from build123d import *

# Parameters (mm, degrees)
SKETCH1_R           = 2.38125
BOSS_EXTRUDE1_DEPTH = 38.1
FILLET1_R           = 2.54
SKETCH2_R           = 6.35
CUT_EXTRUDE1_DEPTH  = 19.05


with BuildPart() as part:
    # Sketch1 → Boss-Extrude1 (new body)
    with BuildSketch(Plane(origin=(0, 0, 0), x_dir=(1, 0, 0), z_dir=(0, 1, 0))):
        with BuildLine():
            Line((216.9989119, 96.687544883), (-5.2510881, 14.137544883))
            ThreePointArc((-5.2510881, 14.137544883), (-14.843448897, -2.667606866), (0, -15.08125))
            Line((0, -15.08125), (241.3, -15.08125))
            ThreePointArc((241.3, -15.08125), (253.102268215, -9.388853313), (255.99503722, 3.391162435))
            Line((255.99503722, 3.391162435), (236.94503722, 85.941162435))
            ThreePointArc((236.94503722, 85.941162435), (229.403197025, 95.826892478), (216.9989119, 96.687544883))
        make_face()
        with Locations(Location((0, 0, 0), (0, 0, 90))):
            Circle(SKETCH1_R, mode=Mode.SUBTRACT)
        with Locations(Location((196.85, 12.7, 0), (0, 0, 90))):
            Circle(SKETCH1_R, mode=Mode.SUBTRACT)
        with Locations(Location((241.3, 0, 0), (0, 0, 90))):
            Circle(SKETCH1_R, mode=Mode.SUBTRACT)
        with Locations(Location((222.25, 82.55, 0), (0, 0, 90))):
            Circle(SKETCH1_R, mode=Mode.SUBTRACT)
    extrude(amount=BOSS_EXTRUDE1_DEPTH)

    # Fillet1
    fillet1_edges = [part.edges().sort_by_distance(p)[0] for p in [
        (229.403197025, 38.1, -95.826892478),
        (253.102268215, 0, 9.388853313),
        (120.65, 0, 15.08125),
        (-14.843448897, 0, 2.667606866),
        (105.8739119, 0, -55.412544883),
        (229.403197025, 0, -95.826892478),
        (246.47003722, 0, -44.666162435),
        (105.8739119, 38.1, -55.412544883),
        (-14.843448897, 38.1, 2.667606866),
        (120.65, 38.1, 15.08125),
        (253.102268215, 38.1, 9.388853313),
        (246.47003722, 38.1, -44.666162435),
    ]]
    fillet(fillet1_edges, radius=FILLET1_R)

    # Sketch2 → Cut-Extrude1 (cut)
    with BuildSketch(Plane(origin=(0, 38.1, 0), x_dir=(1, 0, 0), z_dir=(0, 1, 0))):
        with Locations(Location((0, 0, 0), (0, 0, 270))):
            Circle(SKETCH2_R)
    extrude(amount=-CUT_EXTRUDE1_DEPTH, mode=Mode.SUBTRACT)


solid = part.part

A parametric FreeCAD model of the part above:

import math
import FreeCAD as App
import Part
import Sketcher
Q = App.Units.Quantity


def edges_at(feature, points):
    """Names of the edges that pass closest to the given points."""
    edges = feature.Shape.Edges
    near = lambda p: min(range(len(edges)), key=lambda i: edges[i].distToShape(Part.Vertex(*p))[0])
    return sorted({f"Edge{near(p) + 1}" for p in points})

doc = App.newDocument("Part")
body = doc.addObject("PartDesign::Body", "Body")

sketch1 = body.newObject("Sketcher::SketchObject", "Sketch")
sketch1.AttachmentSupport = (doc.getObject("XZ_Plane"), [""])
sketch1.MapMode = "FlatFace"
sketch1.addGeometry([
    Part.LineSegment(App.Vector(217, -96.7, 0), App.Vector(-5.3, -14.1, 0)),
    Part.ArcOfCircle(Part.Circle(App.Vector(0, 0, 0), App.Vector(0, 0, 1), 15.1), math.radians(90), math.radians(250)),
    Part.LineSegment(App.Vector(0, 15.1, 0), App.Vector(241.3, 15.1, 0)),
    Part.ArcOfCircle(Part.Circle(App.Vector(241.3, 0, 0), App.Vector(0, 0, 1), 15.1), math.radians(-13), math.radians(90)),
    Part.LineSegment(App.Vector(256, -3.4, 0), App.Vector(236.9, -85.9, 0)),
    Part.ArcOfCircle(Part.Circle(App.Vector(222.2, -82.5, 0), App.Vector(0, 0, 1), 15.1), math.radians(-110), math.radians(-13)),
    Part.Circle(App.Vector(0, 0, 0), App.Vector(0, 0, 1), 2.4),
    Part.Circle(App.Vector(241.3, 0, 0), App.Vector(0, 0, 1), 2.4),
    Part.Circle(App.Vector(196.8, -12.7, 0), App.Vector(0, 0, 1), 2.4),
    Part.Circle(App.Vector(222.2, -82.5, 0), App.Vector(0, 0, 1), 2.4),
], False)
sketch1.addConstraint([
    Sketcher.Constraint("Tangent", 0, 2, 1, 2),
    Sketcher.Constraint("Tangent", 1, 1, 2, 1),
    Sketcher.Constraint("Tangent", 2, 2, 3, 2),
    Sketcher.Constraint("Tangent", 3, 1, 4, 1),
    Sketcher.Constraint("Tangent", 4, 2, 5, 2),
    Sketcher.Constraint("Tangent", 5, 1, 0, 1),
    Sketcher.Constraint("Horizontal", 2),
    Sketcher.Constraint("Coincident", 1, 3, -1, 1),
    Sketcher.Constraint("Coincident", 6, 3, -1, 1),
    Sketcher.Constraint("Coincident", 7, 3, 3, 3),
    Sketcher.Constraint("Coincident", 9, 3, 5, 3),
    Sketcher.Constraint("Equal", 1, 3),
    Sketcher.Constraint("Equal", 3, 5),
    Sketcher.Constraint("Equal", 6, 7),
    Sketcher.Constraint("Equal", 7, 8),
    Sketcher.Constraint("Equal", 8, 9),
    Sketcher.Constraint("Diameter", 6, Q("0.1875 in")),
    Sketcher.Constraint("DistanceX", 2, 1, 2, 2, Q("9.5 in")),
    Sketcher.Constraint("Radius", 1, Q("0.59375 in")),
    Sketcher.Constraint("DistanceX", 8, 3, 5, 3, Q("1 in")),
    Sketcher.Constraint("DistanceY", 8, 3, -1, 1, Q("0.5 in")),
    Sketcher.Constraint("DistanceX", -1, 1, 5, 3, Q("8.75 in")),
    Sketcher.Constraint("DistanceY", 5, 3, -1, 1, Q("3.25 in")),
])
pad1 = body.newObject("PartDesign::Pad", "Pad")
pad1.Profile = sketch1
pad1.Length = Q("1.5 in")
pad1.Reversed = True
doc.recompute()

fillet = body.newObject("PartDesign::Fillet", "Fillet")
fillet.Base = (pad1, edges_at(pad1, [
    (229.403, 38.1, -95.827),
    (253.102, 0, 9.389),
    (120.65, 0, 15.081),
    (-14.843, 0, 2.668),
    (105.874, 0, -55.413),
    (229.403, 0, -95.827),
    (246.47, 0, -44.666),
    (105.874, 38.1, -55.413),
    (-14.843, 38.1, 2.668),
    (120.65, 38.1, 15.081),
    (253.102, 38.1, 9.389),
    (246.47, 38.1, -44.666),
]))
fillet.Radius = Q("0.1 in")

sketch2 = body.newObject("Sketcher::SketchObject", "Sketch001")
sketch2.AttachmentSupport = (doc.getObject("XZ_Plane"), [""])
sketch2.MapMode = "FlatFace"
sketch2.AttachmentOffset = App.Placement(App.Vector(0, 0, -1.5 * 25.4), App.Rotation())
sketch2.addGeometry(Part.Circle(App.Vector(0, 0, 0), App.Vector(0, 0, 1), 6), False)
sketch2.addConstraint([
    Sketcher.Constraint("Coincident", 0, 3, -1, 1),
    Sketcher.Constraint("Diameter", 0, Q("0.5 in")),
])
pocket1 = body.newObject("PartDesign::Pocket", "Pocket")
pocket1.Profile = sketch2
pocket1.Length = Q("0.75 in")
pocket1.Reversed = True

doc.recompute()
